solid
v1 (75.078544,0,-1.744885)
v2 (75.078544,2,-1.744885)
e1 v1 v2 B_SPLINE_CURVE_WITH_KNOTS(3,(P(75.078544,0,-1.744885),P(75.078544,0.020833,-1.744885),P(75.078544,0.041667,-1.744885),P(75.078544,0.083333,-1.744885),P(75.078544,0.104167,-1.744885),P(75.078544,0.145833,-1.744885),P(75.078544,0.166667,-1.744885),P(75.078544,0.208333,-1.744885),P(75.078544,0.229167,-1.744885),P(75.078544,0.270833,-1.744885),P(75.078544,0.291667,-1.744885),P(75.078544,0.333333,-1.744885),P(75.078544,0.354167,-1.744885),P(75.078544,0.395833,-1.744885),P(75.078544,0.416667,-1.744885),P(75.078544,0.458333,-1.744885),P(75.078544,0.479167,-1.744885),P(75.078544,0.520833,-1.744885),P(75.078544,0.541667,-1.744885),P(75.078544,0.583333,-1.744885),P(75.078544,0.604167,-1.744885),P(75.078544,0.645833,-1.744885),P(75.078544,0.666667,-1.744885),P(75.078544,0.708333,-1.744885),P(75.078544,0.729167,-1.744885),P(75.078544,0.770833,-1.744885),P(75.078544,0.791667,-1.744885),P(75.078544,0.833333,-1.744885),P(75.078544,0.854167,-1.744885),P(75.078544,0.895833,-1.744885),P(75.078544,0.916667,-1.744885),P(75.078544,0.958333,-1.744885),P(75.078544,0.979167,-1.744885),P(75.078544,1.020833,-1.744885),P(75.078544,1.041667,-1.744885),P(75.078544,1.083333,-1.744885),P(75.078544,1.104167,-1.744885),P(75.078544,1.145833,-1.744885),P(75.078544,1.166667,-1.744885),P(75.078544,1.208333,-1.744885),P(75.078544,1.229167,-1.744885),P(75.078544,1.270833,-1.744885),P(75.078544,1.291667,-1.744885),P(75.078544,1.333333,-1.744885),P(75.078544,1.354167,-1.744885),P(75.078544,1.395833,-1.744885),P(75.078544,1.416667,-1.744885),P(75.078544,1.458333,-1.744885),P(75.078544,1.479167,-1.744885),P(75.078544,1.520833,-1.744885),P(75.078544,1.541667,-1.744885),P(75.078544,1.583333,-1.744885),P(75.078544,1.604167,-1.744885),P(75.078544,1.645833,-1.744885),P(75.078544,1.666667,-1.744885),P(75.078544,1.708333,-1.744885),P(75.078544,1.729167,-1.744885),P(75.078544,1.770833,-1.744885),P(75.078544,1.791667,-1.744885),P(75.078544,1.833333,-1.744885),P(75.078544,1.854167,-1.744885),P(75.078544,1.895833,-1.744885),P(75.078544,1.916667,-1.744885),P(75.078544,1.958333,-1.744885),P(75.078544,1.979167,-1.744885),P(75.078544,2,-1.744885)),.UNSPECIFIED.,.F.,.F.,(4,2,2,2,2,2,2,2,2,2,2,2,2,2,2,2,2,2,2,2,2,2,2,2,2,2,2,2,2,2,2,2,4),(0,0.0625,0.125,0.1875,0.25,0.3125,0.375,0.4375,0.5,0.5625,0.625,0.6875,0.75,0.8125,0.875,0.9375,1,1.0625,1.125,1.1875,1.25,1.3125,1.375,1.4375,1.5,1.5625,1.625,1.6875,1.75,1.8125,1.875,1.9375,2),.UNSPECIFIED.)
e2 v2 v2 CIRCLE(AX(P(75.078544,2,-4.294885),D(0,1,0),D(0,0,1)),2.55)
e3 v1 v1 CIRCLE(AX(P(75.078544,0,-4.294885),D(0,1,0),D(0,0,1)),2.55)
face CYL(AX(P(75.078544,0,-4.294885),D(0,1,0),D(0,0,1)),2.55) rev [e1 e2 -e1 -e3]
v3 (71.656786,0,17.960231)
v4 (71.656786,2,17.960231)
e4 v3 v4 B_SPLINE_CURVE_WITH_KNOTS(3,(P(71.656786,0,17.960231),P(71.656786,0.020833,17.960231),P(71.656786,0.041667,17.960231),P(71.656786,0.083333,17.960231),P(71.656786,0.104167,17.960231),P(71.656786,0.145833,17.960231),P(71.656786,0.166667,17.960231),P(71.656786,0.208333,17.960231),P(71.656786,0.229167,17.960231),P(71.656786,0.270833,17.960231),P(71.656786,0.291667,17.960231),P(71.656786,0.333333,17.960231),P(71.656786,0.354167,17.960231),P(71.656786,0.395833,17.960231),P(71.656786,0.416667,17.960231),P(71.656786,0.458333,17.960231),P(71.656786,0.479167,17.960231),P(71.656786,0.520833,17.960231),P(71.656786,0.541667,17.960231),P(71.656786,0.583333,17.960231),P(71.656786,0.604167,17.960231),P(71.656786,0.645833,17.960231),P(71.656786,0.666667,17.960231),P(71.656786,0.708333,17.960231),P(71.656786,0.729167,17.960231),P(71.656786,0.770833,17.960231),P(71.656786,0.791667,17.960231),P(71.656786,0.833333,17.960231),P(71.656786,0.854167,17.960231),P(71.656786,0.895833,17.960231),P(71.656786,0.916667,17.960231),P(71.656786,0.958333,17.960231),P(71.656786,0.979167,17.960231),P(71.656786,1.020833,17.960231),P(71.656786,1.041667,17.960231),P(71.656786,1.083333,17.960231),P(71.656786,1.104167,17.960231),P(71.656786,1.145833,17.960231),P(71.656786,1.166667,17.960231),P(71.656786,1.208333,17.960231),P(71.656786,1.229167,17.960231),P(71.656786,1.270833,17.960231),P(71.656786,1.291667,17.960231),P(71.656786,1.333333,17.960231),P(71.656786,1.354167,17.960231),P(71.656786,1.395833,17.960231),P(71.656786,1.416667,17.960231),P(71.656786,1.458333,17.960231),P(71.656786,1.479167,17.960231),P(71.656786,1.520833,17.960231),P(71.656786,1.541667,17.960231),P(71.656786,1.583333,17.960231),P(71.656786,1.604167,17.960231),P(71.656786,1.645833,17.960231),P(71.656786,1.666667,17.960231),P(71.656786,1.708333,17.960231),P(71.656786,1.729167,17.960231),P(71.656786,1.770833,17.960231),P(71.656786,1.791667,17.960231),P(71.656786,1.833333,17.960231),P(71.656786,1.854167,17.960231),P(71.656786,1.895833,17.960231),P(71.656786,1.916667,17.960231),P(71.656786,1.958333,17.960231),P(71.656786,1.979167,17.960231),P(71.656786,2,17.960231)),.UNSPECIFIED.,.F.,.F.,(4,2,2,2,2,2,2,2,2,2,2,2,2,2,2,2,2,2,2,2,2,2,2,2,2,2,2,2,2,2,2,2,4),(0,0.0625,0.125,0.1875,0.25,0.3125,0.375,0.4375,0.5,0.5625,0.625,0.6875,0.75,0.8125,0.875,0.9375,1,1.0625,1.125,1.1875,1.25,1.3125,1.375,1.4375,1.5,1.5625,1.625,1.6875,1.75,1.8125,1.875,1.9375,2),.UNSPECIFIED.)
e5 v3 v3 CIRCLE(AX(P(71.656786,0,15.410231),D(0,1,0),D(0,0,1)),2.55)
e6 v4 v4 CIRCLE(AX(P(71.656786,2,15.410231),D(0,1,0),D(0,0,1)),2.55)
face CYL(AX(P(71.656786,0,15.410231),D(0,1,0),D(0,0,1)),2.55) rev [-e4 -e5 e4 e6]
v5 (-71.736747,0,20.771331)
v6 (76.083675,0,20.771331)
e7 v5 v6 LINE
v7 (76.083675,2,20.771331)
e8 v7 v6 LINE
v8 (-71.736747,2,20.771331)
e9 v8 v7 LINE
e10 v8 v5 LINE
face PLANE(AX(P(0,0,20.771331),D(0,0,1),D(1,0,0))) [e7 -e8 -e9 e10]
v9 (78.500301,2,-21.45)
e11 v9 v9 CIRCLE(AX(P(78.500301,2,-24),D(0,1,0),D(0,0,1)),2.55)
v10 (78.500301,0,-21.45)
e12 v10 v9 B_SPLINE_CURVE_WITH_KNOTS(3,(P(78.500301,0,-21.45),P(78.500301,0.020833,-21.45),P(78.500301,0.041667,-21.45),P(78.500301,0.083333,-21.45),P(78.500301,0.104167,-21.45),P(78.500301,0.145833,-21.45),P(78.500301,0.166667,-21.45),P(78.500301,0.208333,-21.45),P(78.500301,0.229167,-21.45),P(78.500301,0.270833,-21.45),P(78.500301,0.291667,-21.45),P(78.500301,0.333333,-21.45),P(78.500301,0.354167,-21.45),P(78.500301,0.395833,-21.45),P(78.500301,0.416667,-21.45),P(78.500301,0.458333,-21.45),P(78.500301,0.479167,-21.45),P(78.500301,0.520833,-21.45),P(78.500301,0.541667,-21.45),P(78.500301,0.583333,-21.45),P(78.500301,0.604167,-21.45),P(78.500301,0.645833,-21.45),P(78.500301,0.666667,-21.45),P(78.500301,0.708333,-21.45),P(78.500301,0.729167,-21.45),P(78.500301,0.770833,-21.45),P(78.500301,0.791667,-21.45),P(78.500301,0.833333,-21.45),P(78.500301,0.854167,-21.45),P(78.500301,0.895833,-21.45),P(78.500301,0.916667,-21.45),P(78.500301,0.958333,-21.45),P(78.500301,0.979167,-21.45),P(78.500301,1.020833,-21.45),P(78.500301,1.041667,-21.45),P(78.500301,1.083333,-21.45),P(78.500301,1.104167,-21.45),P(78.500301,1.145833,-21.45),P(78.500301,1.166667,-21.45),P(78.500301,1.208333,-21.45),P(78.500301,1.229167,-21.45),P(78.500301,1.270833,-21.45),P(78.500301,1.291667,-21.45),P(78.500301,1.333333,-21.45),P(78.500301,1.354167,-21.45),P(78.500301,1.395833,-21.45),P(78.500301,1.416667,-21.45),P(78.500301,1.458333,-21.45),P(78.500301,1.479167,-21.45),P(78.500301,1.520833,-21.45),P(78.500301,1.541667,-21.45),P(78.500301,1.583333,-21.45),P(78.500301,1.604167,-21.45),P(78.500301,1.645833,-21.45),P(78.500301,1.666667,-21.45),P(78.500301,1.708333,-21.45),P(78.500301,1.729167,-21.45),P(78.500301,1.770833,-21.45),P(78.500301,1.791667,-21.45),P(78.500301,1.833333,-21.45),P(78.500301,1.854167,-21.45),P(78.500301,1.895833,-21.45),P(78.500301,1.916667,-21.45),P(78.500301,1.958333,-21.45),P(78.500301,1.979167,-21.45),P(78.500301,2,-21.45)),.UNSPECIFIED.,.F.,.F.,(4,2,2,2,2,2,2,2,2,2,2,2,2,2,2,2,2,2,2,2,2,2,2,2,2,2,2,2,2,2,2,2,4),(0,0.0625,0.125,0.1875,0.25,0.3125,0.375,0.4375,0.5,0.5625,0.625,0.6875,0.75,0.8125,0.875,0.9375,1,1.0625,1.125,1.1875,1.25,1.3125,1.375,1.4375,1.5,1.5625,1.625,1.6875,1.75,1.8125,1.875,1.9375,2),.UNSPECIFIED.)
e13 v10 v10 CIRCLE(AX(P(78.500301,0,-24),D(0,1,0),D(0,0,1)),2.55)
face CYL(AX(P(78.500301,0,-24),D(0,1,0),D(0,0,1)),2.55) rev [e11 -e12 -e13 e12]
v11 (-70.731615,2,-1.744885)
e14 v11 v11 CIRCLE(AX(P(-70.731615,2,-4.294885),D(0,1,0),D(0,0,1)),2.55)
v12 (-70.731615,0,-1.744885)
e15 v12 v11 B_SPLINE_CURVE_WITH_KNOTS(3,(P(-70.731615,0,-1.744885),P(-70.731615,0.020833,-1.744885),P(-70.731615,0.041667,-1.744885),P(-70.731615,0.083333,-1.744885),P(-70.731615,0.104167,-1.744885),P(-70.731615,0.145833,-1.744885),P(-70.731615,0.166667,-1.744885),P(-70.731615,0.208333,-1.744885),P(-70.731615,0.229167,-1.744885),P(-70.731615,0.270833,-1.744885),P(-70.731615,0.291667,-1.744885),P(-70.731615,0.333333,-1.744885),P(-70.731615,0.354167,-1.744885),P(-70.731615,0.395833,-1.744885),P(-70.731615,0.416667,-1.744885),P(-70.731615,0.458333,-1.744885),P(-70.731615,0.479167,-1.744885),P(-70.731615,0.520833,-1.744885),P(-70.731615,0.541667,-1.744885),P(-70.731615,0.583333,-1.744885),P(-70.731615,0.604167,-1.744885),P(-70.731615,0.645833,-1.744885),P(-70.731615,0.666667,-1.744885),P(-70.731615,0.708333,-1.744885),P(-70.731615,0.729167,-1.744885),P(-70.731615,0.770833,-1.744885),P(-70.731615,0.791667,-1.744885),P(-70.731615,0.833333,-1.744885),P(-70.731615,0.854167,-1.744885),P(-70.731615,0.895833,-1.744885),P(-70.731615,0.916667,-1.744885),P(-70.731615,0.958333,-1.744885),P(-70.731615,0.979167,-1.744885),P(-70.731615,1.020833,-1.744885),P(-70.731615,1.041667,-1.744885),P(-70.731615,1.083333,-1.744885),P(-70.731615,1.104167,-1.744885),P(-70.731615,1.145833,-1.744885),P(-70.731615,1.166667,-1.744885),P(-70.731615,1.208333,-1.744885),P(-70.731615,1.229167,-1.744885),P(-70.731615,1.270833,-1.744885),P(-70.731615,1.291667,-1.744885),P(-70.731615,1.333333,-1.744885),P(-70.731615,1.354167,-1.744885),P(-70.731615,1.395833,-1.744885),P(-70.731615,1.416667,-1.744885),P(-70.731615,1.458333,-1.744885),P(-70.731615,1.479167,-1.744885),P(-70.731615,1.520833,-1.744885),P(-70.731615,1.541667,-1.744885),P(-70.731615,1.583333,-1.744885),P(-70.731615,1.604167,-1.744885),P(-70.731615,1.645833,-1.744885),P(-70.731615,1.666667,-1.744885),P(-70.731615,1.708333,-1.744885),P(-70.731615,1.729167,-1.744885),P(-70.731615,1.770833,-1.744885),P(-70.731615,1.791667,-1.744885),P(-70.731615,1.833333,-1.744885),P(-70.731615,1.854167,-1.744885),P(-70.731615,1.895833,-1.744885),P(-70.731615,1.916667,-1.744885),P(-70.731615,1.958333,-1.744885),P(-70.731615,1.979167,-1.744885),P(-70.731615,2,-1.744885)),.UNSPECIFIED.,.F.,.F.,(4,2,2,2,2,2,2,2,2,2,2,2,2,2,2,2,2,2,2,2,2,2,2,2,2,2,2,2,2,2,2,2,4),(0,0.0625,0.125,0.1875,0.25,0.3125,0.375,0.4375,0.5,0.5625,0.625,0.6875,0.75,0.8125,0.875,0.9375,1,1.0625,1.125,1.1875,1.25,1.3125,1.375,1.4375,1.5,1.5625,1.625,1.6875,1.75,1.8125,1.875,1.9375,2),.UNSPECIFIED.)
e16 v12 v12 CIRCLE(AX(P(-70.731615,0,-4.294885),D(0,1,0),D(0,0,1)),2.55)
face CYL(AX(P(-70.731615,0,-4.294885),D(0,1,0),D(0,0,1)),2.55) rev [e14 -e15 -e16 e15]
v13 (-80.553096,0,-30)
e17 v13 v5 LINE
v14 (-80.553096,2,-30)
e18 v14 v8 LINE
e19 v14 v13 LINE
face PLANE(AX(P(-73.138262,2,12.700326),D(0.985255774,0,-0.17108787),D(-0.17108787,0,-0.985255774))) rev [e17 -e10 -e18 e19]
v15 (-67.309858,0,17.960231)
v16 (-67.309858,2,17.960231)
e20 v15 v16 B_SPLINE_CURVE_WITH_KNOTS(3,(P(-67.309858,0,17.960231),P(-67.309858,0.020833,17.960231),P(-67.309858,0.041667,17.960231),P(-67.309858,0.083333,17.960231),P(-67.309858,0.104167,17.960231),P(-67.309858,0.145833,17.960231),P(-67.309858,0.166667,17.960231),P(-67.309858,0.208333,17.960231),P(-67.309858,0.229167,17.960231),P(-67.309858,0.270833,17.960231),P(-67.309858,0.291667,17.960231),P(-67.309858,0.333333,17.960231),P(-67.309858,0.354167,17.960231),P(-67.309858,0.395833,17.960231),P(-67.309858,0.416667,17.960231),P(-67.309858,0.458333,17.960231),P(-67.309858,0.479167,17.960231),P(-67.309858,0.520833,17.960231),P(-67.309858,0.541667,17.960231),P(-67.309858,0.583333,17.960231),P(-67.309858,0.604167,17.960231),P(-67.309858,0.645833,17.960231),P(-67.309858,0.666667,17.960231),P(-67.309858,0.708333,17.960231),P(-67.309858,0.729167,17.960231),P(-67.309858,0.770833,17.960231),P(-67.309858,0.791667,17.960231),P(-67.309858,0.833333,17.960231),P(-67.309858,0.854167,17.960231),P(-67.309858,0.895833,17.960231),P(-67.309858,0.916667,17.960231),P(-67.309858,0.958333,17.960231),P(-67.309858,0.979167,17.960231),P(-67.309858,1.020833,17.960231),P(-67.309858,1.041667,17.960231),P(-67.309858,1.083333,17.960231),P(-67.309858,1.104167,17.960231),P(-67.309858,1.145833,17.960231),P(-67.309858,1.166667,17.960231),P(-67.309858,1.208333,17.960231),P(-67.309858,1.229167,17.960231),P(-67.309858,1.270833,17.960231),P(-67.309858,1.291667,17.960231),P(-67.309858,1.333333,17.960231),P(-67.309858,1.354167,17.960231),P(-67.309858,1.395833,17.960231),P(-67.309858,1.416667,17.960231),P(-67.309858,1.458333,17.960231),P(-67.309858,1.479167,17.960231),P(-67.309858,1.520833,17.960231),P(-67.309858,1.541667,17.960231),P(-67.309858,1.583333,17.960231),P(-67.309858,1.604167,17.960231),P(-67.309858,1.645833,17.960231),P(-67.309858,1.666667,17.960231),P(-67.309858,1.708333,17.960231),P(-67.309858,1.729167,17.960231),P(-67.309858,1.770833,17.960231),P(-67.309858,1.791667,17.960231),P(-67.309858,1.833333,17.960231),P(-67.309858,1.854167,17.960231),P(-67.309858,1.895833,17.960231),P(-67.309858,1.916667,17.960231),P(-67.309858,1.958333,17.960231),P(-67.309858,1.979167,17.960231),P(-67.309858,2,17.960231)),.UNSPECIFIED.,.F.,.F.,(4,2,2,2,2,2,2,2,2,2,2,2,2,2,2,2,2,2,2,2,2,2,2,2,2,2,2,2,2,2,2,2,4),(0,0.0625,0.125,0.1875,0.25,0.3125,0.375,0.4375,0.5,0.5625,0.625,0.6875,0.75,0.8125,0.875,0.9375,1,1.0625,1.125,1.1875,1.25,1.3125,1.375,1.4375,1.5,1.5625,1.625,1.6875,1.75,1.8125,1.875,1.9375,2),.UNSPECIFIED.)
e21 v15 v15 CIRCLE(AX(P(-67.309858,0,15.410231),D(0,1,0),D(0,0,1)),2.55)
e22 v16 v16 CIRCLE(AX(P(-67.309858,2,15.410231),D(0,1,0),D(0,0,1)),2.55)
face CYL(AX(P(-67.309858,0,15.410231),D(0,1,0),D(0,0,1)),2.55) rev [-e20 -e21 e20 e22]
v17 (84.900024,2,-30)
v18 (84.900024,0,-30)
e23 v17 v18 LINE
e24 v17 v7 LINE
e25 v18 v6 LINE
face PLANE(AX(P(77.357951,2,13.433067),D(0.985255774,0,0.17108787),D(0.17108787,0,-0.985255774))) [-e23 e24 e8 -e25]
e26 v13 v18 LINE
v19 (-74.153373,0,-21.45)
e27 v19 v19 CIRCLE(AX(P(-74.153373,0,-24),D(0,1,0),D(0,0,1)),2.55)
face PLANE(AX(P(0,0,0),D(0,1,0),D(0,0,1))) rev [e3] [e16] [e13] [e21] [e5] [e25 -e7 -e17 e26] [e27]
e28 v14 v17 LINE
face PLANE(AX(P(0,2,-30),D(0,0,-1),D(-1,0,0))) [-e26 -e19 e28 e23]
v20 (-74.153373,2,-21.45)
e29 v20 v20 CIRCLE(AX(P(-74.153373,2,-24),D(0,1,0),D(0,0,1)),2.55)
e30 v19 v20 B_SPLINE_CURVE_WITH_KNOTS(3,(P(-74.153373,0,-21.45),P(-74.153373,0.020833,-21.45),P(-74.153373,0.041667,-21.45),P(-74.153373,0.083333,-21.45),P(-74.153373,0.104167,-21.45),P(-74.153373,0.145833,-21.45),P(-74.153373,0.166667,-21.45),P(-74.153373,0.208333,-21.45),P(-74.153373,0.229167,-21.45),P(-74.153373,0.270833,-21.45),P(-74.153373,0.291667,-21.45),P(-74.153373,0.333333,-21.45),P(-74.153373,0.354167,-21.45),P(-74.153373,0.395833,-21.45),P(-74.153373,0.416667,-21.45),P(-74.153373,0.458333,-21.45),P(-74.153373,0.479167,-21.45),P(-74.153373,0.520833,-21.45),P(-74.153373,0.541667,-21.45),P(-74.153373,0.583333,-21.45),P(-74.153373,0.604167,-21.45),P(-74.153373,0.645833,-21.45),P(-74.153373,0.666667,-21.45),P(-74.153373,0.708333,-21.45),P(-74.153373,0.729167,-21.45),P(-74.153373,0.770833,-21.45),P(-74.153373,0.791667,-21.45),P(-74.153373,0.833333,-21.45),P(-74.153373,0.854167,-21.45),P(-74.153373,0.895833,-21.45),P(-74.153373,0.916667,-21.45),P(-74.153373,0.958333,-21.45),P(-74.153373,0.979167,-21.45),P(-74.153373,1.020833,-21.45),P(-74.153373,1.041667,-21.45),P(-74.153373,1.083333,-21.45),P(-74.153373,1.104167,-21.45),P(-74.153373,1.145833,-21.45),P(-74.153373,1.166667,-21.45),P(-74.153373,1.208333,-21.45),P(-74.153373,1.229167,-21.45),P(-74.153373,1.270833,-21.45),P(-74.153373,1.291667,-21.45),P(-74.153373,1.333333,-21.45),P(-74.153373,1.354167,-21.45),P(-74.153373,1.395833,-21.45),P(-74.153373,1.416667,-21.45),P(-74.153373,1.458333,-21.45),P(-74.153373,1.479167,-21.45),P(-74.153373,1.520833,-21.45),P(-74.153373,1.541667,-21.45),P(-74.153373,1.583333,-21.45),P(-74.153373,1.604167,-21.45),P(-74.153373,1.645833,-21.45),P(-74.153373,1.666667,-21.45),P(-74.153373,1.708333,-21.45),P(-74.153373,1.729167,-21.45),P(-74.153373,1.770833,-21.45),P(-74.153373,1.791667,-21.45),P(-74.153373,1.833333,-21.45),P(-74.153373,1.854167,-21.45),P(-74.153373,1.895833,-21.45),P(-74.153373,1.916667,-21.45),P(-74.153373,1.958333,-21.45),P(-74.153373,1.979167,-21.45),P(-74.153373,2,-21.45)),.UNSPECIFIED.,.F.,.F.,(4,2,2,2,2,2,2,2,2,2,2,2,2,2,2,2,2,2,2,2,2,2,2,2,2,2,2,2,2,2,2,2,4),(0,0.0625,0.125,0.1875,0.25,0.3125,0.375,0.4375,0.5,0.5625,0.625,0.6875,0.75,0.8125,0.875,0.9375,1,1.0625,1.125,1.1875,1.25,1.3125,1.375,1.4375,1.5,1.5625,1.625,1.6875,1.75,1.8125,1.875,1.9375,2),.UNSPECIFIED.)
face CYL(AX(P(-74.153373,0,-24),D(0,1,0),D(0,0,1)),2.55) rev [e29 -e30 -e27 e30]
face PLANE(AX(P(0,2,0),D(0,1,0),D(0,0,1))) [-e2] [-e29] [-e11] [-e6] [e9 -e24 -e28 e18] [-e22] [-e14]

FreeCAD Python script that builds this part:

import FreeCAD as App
import Part
import Sketcher

V = App.Vector
Q = App.Units.Quantity


def add_polygon(sketch, points):
    """Adds a closed chain of lines whose ends are joined by coincident constraints."""
    first, n = sketch.GeometryCount, len(points)
    for a, b in zip(points, points[1:] + points[:1]):
        sketch.addGeometry(Part.LineSegment(App.Vector(*a, 0), App.Vector(*b, 0)), False)
    for i in range(n):
        sketch.addConstraint(Sketcher.Constraint("Coincident", first + i, 2, first + (i + 1) % n, 1))

doc = App.newDocument("Part")
body = doc.addObject("PartDesign::Body", "Body")

# Sketch on XZ plane
sketch1 = doc.addObject("Sketcher::SketchObject", "Sketch")
body.addObject(sketch1)
sketch1.AttachmentSupport = (doc.XZ_Plane, [""])
sketch1.MapMode = "FlatFace"
add_polygon(sketch1, [(-100, -30), (-100, 30), (100, 30), (100, -30)])  # lines 0-3
sketch1.addConstraint([
    Sketcher.Constraint("Vertical", 0),
    Sketcher.Constraint("Horizontal", 1),
    Sketcher.Constraint("Vertical", 2),
    Sketcher.Constraint("Horizontal", 3),
    Sketcher.Constraint("Symmetric", 0, 2, 2, 2, -1, 1),
    Sketcher.Constraint("DistanceX", 1, 1, 1, 2, Q("200 mm")),
    Sketcher.Constraint("DistanceY", 0, 1, 0, 2, Q("60 mm")),
])
pad1 = doc.addObject("PartDesign::Pad", "Pad")
body.addObject(pad1)
pad1.Profile = sketch1
pad1.Length = 2
pad1.Reversed = True

# Sketch on XZ plane
sketch2 = doc.addObject("Sketcher::SketchObject", "Sketch001")
body.addObject(sketch2)
sketch2.AttachmentSupport = (doc.XZ_Plane, [""])
sketch2.MapMode = "FlatFace"
sketch2.AttachmentOffset = App.Placement(V(0, 0, -2), App.Rotation())
add_polygon(sketch2, [(82.173464, 20.771331), (-77.826536, 20.771331), (-86.642885, -30), (-100, -30), (-100, 30), (100, 30), (100, -30), (90.989813, -30)])  # lines 0-7
sketch2.addGeometry(Part.Circle(V(-74.153373, -24, 0), V(0, 0, 1), 2.55), False)  # 8
sketch2.addGeometry(Part.Circle(V(-70.731615, -4.294885, 0), V(0, 0, 1), 2.55), False)  # 9
sketch2.addGeometry(Part.Circle(V(-67.309858, 15.410231, 0), V(0, 0, 1), 2.55), False)  # 10
sketch2.addGeometry(Part.Circle(V(78.500301, -24, 0), V(0, 0, 1), 2.55), False)  # 11
sketch2.addGeometry(Part.Circle(V(71.656786, 15.410231, 0), V(0, 0, 1), 2.55), False)  # 12
sketch2.addGeometry(Part.Circle(V(75.078544, -4.294885, 0), V(0, 0, 1), 2.55), False)  # 13
sketch2.addConstraint([
    Sketcher.Constraint("Horizontal", 0),
    Sketcher.Constraint("Horizontal", 2),
    Sketcher.Constraint("Vertical", 3),
    Sketcher.Constraint("Horizontal", 4),
    Sketcher.Constraint("Vertical", 5),
    Sketcher.Constraint("Horizontal", 6),
    Sketcher.Constraint("Equal", 8, 9),
    Sketcher.Constraint("Equal", 9, 10),
    Sketcher.Constraint("Equal", 10, 11),
    Sketcher.Constraint("Equal", 11, 12),
    Sketcher.Constraint("Equal", 12, 13),
    Sketcher.Constraint("Symmetric", 2, 2, 4, 2, -1, 1),
    Sketcher.Constraint("Horizontal", 8, 3, 11, 3),
    Sketcher.Constraint("Horizontal", 10, 3, 12, 3),
    Sketcher.Constraint("Horizontal", 9, 3, 13, 3),
    Sketcher.Constraint("Horizontal", 2, 2, 5, 2),
    Sketcher.Constraint("Equal", 1, 7),
    Sketcher.Constraint("Diameter", 8, Q("5.1 mm")),
    Sketcher.Constraint("DistanceX", 0, 2, 0, 1, Q("160 mm")),
    Sketcher.Constraint("DistanceX", 4, 1, 4, 2, Q("200 mm")),
    Sketcher.Constraint("DistanceY", 3, 1, 3, 2, Q("60 mm")),
    Sketcher.Constraint("DistanceY", 8, 3, -1, 1, Q("24 mm")),
    Sketcher.Constraint("DistanceX", -1, 1, 11, 3, Q("78.500301 mm")),
    Sketcher.Constraint("DistanceX", 9, 3, 12, 3, Q("142.388402 mm")),
    Sketcher.Constraint("DistanceX", 10, 3, 13, 3, Q("142.388402 mm")),
    Sketcher.Constraint("DistanceY", 10, 3, 0, 2, Q("5.3611 mm")),
    Sketcher.Constraint("DistanceX", 2, 2, 2, 1, Q("13.357115 mm")),
    Sketcher.Constraint("DistanceX", 6, 2, 6, 1, Q("9.010187 mm")),
    Sketcher.Constraint("DistanceX", 10, 3, -1, 1, Q("67.309858 mm")),
    Sketcher.Constraint("DistanceY", -1, 1, 10, 3, Q("15.410231 mm")),
    Sketcher.Constraint("DistanceX", 8, 3, 12, 3, Q("145.810159 mm")),
    Sketcher.Constraint("DistanceX", 9, 3, 13, 3, Q("145.810159 mm")),
    Sketcher.Constraint("DistanceY", 9, 3, -1, 1, Q("4.294885 mm")),
])
pocket1 = doc.addObject("PartDesign::Pocket", "Pocket")
body.addObject(pocket1)
pocket1.Profile = sketch2
pocket1.Type = "ThroughAll"
pocket1.Reversed = True

# Sketch on XZ plane
sketch3 = doc.addObject("Sketcher::SketchObject", "Sketch002")
body.addObject(sketch3)
sketch3.AttachmentSupport = (doc.XZ_Plane, [""])
sketch3.MapMode = "FlatFace"
add_polygon(sketch3, [(76.083675, 20.771331), (84.900024, -30), (90.989813, -30), (82.173464, 20.771331)])  # lines 0-3
add_polygon(sketch3, [(-86.642885, -30), (-80.553096, -30), (-71.736747, 20.771331), (-77.826536, 20.771331)])  # lines 4-7
sketch3.addConstraint([
    Sketcher.Constraint("Horizontal", 1),
    Sketcher.Constraint("Horizontal", 3),
    Sketcher.Constraint("Horizontal", 4),
    Sketcher.Constraint("Horizontal", 6),
    Sketcher.Constraint("Parallel", 0, 2),
    Sketcher.Constraint("Parallel", 5, 7),
    Sketcher.Constraint("Horizontal", 1, 2, 4, 2),
    Sketcher.Constraint("Horizontal", 3, 2, 5, 2),
    Sketcher.Constraint("Equal", 3, 4),
    Sketcher.Constraint("Equal", 2, 5),
    Sketcher.Constraint("DistanceY", 0, 2, -1, 1, Q("30 mm")),
    Sketcher.Constraint("DistanceX", 6, 2, 2, 2, Q("160 mm")),
    Sketcher.Constraint("DistanceX", 1, 1, 1, 2, Q("6.089789 mm")),
    Sketcher.Constraint("DistanceY", -1, 1, 2, 2, Q("20.771331 mm")),
    Sketcher.Constraint("DistanceX", 2, 2, 0, 2, Q("2.72656 mm")),
    Sketcher.Constraint("DistanceX", -1, 1, 0, 2, Q("84.900024 mm")),
])
pocket2 = doc.addObject("PartDesign::Pocket", "Pocket001")
body.addObject(pocket2)
pocket2.Profile = sketch3
pocket2.Type = "ThroughAll"

doc.recompute()
